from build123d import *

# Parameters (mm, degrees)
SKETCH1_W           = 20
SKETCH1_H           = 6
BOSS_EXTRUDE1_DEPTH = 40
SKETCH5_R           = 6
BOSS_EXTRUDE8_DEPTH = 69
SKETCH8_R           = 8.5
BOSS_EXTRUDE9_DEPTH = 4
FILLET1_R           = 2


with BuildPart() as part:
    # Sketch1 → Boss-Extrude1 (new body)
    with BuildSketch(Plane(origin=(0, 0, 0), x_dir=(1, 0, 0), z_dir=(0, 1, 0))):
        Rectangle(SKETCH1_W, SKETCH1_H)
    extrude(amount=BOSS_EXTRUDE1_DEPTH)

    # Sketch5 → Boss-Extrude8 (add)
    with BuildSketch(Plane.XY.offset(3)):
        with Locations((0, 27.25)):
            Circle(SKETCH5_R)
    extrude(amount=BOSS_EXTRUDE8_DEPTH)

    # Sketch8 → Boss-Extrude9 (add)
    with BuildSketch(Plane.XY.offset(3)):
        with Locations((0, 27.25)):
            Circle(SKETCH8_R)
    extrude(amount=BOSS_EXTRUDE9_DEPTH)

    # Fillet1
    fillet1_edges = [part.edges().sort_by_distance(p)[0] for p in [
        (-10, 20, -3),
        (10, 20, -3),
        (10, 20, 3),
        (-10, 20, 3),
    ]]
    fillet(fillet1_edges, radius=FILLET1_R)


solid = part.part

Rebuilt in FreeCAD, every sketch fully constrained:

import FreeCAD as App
import Part
import Sketcher
from FreeCAD import Vector
Q = App.Units.Quantity


def edges_at(feature, points):
    """Names of the edges that pass closest to the given points."""
    edges = feature.Shape.Edges
    near = lambda p: min(range(len(edges)), key=lambda i: edges[i].distToShape(Part.Vertex(*p))[0])
    return sorted({f"Edge{near(p) + 1}" for p in points})


def add_polygon(sketch, points):
    """Adds a closed chain of lines whose ends are joined by coincident constraints."""
    first, n = sketch.GeometryCount, len(points)
    for a, b in zip(points, points[1:] + points[:1]):
        sketch.addGeometry(Part.LineSegment(App.Vector(*a, 0), App.Vector(*b, 0)), False)
    for i in range(n):
        sketch.addConstraint(Sketcher.Constraint("Coincident", first + i, 2, first + (i + 1) % n, 1))

doc = App.newDocument("Part")
params = doc.addObject("Spreadsheet::Sheet", "Params")
for row, (alias, value) in enumerate([
    ("sketch1_width", "20 mm"),
    ("sketch1_height", "6 mm"),
    ("pad1_length", "40 mm"),
    ("sketch2_diameter", "12 mm"),
    ("pad2_length", "69 mm"),
    ("sketch3_diameter", "17 mm"),
    ("pad3_length", "4 mm"),
    ("fillet_radius", "2 mm"),
], start=1):
    params.set(f"A{row}", alias)
    params.set(f"B{row}", "=" + value)
    params.setAlias(f"B{row}", alias)

body = doc.addObject("PartDesign::Body", "Body")

# Sketch on XZ plane
sketch1 = body.newObject("Sketcher::SketchObject", "Sketch")
sketch1.AttachmentSupport = (doc.getObject("XZ_Plane"), [""])
sketch1.MapMode = "FlatFace"
add_polygon(sketch1, [(-10, -3), (-10, 3), (10, 3), (10, -3)])  # lines 0-3
sketch1.addConstraint(Sketcher.Constraint("Vertical", 0))
sketch1.addConstraint(Sketcher.Constraint("Horizontal", 1))
sketch1.addConstraint(Sketcher.Constraint("Vertical", 2))
sketch1.addConstraint(Sketcher.Constraint("Horizontal", 3))
sketch1.addConstraint(Sketcher.Constraint("Symmetric", 0, 2, 2, 2, -1, 1))
sketch1.addConstraint(Sketcher.Constraint("DistanceX", 1, 1, 1, 2, Q("20 mm")))
sketch1.addConstraint(Sketcher.Constraint("DistanceY", 0, 1, 0, 2, Q("6 mm")))
sketch1.setExpression("Constraints[9]", "Params.sketch1_width")
sketch1.setExpression("Constraints[10]", "Params.sketch1_height")
pad1 = body.newObject("PartDesign::Pad", "Pad")
pad1.Profile = sketch1
pad1.setExpression("Length", "Params.pad1_length")
pad1.Reversed = True

# Sketch on XY plane
sketch2 = body.newObject("Sketcher::SketchObject", "Sketch001")
sketch2.AttachmentSupport = (doc.getObject("XY_Plane"), [""])
sketch2.MapMode = "FlatFace"
sketch2.AttachmentOffset = App.Placement(Vector(0, 0, 3), App.Rotation())
sketch2.addGeometry(Part.Circle(Vector(0, 27, 0), Vector(0, 0, 1), 6), False)
sketch2.addConstraint(Sketcher.Constraint("PointOnObject", 0, 3, -2))
sketch2.addConstraint(Sketcher.Constraint("Diameter", 0, Q("12 mm")))
sketch2.addConstraint(Sketcher.Constraint("DistanceY", -1, 1, 0, 3, Q("27.25 mm")))
sketch2.setExpression("Constraints[1]", "Params.sketch2_diameter")
pad2 = body.newObject("PartDesign::Pad", "Pad001")
pad2.Profile = sketch2
pad2.setExpression("Length", "Params.pad2_length")

# Sketch on XY plane
sketch3 = body.newObject("Sketcher::SketchObject", "Sketch002")
sketch3.AttachmentSupport = (doc.getObject("XY_Plane"), [""])
sketch3.MapMode = "FlatFace"
sketch3.AttachmentOffset = App.Placement(Vector(0, 0, 3), App.Rotation())
sketch3.addGeometry(Part.Circle(Vector(0, 27, 0), Vector(0, 0, 1), 8), False)
sketch3.addConstraint(Sketcher.Constraint("PointOnObject", 0, 3, -2))
sketch3.addConstraint(Sketcher.Constraint("Diameter", 0, Q("17 mm")))
sketch3.addConstraint(Sketcher.Constraint("DistanceY", -1, 1, 0, 3, Q("27.25 mm")))
sketch3.setExpression("Constraints[1]", "Params.sketch3_diameter")
pad3 = body.newObject("PartDesign::Pad", "Pad002")
pad3.Profile = sketch3
pad3.setExpression("Length", "Params.pad3_length")
doc.recompute()

fillet = body.newObject("PartDesign::Fillet", "Fillet")
fillet.Base = (pad3, edges_at(pad3, [
    (-10, 20, -3),
    (10, 20, -3),
    (10, 20, 3),
    (-10, 20, 3),
]))
fillet.setExpression("Radius", "Params.fillet_radius")

doc.recompute()
